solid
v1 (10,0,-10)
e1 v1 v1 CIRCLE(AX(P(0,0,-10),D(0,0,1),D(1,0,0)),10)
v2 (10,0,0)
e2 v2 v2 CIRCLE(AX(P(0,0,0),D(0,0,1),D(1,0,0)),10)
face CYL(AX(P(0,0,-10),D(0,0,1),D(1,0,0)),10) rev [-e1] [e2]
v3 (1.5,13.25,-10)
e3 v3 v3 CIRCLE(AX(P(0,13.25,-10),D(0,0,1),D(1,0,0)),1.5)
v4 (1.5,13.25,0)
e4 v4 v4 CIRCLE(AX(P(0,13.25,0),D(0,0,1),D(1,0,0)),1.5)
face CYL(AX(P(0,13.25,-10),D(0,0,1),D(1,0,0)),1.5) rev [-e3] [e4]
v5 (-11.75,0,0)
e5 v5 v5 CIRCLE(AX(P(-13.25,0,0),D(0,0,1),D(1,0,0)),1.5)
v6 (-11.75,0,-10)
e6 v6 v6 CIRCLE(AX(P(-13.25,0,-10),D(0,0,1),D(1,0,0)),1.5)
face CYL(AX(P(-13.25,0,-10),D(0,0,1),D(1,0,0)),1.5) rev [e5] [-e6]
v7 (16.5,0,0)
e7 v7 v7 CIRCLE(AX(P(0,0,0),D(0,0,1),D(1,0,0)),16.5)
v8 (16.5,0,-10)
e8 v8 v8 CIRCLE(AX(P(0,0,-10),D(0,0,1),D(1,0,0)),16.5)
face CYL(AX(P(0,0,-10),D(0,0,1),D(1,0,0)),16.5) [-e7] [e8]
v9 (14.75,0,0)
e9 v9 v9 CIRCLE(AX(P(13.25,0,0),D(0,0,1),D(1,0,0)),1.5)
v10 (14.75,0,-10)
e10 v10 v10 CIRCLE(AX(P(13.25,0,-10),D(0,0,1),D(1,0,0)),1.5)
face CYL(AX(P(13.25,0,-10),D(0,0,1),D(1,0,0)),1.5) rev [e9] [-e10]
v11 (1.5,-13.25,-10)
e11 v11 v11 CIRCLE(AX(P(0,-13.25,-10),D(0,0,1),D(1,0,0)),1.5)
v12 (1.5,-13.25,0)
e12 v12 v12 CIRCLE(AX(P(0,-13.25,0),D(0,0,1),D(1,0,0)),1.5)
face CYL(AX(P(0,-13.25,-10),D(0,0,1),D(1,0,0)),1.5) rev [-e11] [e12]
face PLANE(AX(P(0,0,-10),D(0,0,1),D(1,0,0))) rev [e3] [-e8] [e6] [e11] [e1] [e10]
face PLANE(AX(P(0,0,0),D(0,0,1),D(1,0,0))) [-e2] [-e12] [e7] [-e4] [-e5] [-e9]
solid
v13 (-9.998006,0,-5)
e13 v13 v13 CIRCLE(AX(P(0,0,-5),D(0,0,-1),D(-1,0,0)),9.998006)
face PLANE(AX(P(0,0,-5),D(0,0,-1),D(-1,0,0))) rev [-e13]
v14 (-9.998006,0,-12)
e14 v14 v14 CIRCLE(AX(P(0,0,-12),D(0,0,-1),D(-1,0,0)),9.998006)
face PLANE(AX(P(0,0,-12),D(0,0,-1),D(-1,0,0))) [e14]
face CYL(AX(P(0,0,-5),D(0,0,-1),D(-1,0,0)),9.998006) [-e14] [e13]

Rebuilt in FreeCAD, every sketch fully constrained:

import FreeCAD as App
import Part
import Sketcher

V = App.Vector

doc = App.newDocument("Part")
body = doc.addObject("PartDesign::Body", "Body")

# Sketch on XY plane
sketch1 = body.newObject("Sketcher::SketchObject", "Sketch")
sketch1.AttachmentSupport = (doc.getObject("XY_Plane"), [""])
sketch1.MapMode = "FlatFace"
sketch1.addGeometry([
    Part.Circle(V(0, 0, 0), V(0, 0, 1), 16.5),  # 0
    Part.Circle(V(0, -13.25, 0), V(0, 0, 1), 1.5),  # 1
    Part.Circle(V(-13.25, 0, 0), V(0, 0, 1), 1.5),  # 2
    Part.Circle(V(0, 0, 0), V(0, 0, 1), 10),  # 3
    Part.Circle(V(13.25, 0, 0), V(0, 0, 1), 1.5),  # 4
    Part.Circle(V(0, 13.25, 0), V(0, 0, 1), 1.5),  # 5
], False)
sketch1.addConstraint([
    Sketcher.Constraint("Coincident", 0, 3, -1, 1),
    Sketcher.Constraint("Coincident", 3, 3, -1, 1),
    Sketcher.Constraint("Equal", 1, 2),
    Sketcher.Constraint("Equal", 2, 4),
    Sketcher.Constraint("Equal", 4, 5),
    Sketcher.Constraint("Symmetric", 2, 3, 4, 3, -1, 1),
    Sketcher.Constraint("Symmetric", 1, 3, 5, 3, -1, 1),
    Sketcher.Constraint("PointOnObject", 1, 3, -2),
    Sketcher.Constraint("PointOnObject", 2, 3, -1),
    Sketcher.Constraint("Diameter", 0, 33.0),
    Sketcher.Constraint("Diameter", 1, 3.0),
    Sketcher.Constraint("Diameter", 3, 20.0),
    Sketcher.Constraint("DistanceX", 2, 3, 4, 3, 26.5),
    Sketcher.Constraint("DistanceY", 1, 3, 5, 3, 26.5),
])
pad1 = body.newObject("PartDesign::Pad", "Pad")
pad1.Profile = sketch1
pad1.Length = 10
pad1.Reversed = True
body2 = doc.addObject("PartDesign::Body", "Body001")

# Sketch on XY plane
sketch2 = body2.newObject("Sketcher::SketchObject", "Sketch001")
sketch2.AttachmentSupport = (doc.getObject("XY_Plane001"), [""])
sketch2.MapMode = "FlatFace"
sketch2.AttachmentOffset = App.Placement(V(0, 0, -10), App.Rotation())
sketch2.addGeometry(Part.Circle(V(0, 0, 0), V(0, 0, 1), 9.998006), False)
sketch2.addConstraint([
    Sketcher.Constraint("Coincident", 0, 3, -1, 1),
    Sketcher.Constraint("Diameter", 0, 19.996012),
])
pad2 = body2.newObject("PartDesign::Pad", "Pad001")
pad2.Profile = sketch2
pad2.Length = 5

# Sketch on XY plane
sketch3 = body2.newObject("Sketcher::SketchObject", "Sketch002")
sketch3.AttachmentSupport = (doc.getObject("XY_Plane001"), [""])
sketch3.MapMode = "FlatFace"
sketch3.AttachmentOffset = App.Placement(V(0, 0, -10), App.Rotation())
sketch3.addGeometry(Part.Circle(V(0, 0, 0), V(0, 0, 1), 9.998006), False)
sketch3.addConstraint([
    Sketcher.Constraint("Coincident", 0, 3, -1, 1),
    Sketcher.Constraint("Diameter", 0, 19.996012),
])
pad3 = body2.newObject("PartDesign::Pad", "Pad002")
pad3.Profile = sketch3
pad3.Length = 2
pad3.Reversed = True

doc.recompute()
